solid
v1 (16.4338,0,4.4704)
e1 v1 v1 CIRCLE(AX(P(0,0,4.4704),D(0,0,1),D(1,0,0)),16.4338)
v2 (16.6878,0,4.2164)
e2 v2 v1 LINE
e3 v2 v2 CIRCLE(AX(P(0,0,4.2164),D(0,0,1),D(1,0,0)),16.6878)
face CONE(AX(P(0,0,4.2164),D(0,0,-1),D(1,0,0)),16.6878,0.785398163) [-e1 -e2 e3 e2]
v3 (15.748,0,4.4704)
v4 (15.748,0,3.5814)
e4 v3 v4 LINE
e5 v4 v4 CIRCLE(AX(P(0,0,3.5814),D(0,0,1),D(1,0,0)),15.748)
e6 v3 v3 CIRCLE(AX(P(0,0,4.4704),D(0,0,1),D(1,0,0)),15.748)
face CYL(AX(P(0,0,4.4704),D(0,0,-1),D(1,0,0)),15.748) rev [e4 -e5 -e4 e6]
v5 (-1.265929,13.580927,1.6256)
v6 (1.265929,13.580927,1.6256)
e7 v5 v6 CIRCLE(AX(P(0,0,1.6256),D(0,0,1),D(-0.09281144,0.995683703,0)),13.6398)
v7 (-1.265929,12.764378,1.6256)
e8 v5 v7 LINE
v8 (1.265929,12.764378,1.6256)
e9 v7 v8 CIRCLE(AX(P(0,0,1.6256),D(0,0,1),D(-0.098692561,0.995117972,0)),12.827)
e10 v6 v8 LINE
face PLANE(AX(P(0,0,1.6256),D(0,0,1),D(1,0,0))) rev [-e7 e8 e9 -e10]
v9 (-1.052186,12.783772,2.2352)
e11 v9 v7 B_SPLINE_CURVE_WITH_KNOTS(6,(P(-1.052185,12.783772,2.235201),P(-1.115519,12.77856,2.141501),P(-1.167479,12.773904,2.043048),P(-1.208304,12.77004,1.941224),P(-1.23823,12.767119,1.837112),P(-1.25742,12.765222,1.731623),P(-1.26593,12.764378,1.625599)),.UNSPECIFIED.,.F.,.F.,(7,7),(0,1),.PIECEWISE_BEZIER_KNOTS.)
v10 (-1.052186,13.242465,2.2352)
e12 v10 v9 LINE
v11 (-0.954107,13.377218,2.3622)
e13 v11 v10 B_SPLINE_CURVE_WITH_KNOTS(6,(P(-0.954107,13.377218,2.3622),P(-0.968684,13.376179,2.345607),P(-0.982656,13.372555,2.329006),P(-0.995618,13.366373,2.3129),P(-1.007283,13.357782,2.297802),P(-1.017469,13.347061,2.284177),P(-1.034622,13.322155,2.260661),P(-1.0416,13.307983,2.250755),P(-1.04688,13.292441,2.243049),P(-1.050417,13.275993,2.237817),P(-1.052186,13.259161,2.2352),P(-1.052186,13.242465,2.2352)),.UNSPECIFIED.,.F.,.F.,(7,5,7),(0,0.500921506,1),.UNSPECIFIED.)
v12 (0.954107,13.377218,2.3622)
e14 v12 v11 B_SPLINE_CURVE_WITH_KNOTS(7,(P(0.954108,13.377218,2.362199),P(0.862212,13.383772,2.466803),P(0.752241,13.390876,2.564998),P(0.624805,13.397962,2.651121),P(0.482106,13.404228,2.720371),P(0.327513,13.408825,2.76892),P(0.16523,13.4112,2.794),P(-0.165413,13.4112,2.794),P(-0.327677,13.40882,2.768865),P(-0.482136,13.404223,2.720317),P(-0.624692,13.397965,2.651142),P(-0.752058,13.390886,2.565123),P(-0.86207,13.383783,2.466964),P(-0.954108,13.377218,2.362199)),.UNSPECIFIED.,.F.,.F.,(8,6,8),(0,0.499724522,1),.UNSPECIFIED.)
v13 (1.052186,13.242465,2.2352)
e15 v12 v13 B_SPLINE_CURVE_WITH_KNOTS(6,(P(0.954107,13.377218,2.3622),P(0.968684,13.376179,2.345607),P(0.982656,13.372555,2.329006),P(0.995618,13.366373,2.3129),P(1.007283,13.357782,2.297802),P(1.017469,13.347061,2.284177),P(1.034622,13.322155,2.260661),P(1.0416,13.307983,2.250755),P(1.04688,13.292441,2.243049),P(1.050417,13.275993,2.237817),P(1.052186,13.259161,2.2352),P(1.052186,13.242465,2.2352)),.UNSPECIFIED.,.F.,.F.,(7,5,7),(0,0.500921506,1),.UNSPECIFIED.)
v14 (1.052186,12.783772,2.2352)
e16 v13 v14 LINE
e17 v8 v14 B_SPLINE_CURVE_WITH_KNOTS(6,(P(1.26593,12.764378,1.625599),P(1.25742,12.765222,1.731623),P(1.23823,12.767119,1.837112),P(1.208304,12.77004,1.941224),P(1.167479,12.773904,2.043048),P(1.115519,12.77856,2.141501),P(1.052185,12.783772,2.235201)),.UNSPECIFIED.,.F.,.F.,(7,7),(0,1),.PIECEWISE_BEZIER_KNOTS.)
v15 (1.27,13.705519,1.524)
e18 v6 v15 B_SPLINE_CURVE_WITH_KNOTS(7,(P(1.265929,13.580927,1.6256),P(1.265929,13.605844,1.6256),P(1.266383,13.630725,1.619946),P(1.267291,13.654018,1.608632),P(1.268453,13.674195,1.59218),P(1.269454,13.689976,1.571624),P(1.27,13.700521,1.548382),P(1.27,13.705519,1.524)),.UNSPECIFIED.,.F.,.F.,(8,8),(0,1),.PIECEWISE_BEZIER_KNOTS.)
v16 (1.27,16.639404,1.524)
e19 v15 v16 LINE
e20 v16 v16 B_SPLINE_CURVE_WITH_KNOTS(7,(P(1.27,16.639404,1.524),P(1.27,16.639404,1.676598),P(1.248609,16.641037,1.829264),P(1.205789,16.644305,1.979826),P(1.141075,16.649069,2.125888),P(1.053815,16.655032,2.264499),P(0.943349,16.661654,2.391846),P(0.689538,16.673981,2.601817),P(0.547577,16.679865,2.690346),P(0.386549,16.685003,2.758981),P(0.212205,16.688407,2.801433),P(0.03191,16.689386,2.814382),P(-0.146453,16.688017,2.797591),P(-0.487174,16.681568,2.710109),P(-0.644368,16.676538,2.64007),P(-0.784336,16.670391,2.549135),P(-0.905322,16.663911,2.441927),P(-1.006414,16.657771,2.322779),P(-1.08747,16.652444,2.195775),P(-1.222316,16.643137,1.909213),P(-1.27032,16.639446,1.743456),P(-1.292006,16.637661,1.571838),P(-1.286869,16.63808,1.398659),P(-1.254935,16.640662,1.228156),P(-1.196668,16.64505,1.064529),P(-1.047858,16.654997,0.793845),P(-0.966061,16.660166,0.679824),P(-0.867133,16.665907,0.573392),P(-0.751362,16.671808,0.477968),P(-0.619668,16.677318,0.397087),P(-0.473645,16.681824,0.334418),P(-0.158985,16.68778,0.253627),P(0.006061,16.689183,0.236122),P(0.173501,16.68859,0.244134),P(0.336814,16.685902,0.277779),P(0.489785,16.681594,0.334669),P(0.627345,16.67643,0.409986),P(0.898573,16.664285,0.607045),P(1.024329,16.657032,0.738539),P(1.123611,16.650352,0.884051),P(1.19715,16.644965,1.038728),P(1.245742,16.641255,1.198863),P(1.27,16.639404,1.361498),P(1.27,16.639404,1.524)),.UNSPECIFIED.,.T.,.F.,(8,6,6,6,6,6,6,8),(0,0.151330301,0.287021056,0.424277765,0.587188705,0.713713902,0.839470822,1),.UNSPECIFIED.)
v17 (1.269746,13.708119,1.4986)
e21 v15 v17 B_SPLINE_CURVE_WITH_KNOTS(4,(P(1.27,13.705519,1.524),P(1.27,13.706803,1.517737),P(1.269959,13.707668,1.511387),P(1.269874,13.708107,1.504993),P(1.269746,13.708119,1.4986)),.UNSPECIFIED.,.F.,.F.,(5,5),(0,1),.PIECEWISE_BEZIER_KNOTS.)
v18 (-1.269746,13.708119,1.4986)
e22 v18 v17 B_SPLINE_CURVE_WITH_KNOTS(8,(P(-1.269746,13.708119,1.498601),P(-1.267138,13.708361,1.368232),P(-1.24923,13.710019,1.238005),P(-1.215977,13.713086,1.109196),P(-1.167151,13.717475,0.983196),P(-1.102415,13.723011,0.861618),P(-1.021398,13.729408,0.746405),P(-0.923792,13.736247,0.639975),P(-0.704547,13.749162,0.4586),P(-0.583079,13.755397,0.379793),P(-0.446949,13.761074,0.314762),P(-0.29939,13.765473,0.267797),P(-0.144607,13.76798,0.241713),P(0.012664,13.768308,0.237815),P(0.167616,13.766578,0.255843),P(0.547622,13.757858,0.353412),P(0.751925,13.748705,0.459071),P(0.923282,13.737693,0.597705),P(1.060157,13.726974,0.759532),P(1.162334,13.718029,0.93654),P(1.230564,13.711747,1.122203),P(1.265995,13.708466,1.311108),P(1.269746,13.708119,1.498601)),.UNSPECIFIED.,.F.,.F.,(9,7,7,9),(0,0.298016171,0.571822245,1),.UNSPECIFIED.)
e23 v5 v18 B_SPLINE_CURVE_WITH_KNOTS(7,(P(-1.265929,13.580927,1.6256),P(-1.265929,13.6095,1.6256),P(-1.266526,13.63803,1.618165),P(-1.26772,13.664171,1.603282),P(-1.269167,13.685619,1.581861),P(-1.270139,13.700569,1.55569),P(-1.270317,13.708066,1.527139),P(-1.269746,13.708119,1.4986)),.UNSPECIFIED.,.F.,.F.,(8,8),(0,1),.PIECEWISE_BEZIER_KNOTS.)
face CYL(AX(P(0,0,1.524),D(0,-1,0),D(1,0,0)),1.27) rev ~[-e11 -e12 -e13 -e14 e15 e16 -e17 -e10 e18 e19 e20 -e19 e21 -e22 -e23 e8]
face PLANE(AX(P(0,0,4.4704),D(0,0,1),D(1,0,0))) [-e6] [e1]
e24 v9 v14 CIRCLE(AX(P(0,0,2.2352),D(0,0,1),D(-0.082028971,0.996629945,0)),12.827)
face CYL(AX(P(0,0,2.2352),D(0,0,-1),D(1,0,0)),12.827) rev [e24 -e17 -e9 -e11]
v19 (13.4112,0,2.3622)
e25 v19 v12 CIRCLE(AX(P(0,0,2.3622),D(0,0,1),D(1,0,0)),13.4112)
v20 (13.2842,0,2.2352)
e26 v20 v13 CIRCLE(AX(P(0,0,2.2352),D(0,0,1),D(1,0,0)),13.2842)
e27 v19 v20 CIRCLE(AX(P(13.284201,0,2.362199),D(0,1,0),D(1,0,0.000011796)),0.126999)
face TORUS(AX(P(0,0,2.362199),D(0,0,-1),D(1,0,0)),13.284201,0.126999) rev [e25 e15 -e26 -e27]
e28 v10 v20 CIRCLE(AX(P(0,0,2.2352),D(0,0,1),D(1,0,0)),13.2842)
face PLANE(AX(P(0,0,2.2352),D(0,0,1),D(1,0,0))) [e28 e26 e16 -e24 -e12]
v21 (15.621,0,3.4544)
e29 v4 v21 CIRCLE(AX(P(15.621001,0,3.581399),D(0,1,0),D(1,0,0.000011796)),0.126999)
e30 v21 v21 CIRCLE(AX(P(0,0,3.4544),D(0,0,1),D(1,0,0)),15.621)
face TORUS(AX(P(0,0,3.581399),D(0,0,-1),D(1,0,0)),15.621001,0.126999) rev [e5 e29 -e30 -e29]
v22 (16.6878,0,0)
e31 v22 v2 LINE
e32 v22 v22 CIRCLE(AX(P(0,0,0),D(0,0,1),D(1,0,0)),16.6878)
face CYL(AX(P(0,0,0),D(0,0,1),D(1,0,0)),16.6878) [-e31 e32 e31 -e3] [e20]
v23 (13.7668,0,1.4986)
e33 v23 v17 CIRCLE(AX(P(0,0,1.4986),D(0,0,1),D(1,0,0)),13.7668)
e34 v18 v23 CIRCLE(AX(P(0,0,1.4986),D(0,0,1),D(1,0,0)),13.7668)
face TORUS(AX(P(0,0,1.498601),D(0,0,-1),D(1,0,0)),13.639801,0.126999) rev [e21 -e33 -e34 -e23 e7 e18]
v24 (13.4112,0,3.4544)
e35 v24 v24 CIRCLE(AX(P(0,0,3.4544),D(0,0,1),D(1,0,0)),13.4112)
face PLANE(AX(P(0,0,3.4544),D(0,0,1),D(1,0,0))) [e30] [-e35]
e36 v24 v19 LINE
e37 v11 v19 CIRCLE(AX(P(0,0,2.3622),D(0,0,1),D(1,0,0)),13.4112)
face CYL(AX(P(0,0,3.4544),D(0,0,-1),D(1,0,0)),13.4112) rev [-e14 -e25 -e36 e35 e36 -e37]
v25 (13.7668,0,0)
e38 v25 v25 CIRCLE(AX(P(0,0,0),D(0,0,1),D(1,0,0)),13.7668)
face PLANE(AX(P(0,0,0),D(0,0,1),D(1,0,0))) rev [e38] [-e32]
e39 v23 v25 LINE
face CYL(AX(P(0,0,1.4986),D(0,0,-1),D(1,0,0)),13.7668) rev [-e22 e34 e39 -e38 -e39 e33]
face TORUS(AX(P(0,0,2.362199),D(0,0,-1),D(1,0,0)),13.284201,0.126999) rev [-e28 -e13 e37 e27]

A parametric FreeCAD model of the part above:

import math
import FreeCAD as App
import Part
import Sketcher
from FreeCAD import Vector
Q = App.Units.Quantity

doc = App.newDocument("Part")
body = doc.addObject("PartDesign::Body", "Body")

# Sketch on XZ plane
sketch1 = body.newObject("Sketcher::SketchObject", "Sketch")
sketch1.AttachmentSupport = (doc.getObject("XZ_Plane"), [""])
sketch1.MapMode = "FlatFace"
sketch1.addGeometry(Part.LineSegment(Vector(16.69, 0, 0), Vector(16.69, 4.22, 0)), False)
sketch1.addGeometry(Part.LineSegment(Vector(16.69, 4.22, 0), Vector(16.43, 4.47, 0)), False)
sketch1.addGeometry(Part.LineSegment(Vector(16.43, 4.47, 0), Vector(15.75, 4.47, 0)), False)
sketch1.addGeometry(Part.LineSegment(Vector(15.75, 4.47, 0), Vector(15.75, 3.58, 0)), False)
sketch1.addGeometry(Part.ArcOfCircle(Part.Circle(Vector(15.62, 3.58, 0), Vector(0, 0, 1), 0.13), math.radians(-90), math.radians(0)), False)
sketch1.addGeometry(Part.LineSegment(Vector(15.62, 3.45, 0), Vector(13.41, 3.45, 0)), False)
sketch1.addGeometry(Part.LineSegment(Vector(13.41, 3.45, 0), Vector(13.41, 2.36, 0)), False)
sketch1.addGeometry(Part.ArcOfCircle(Part.Circle(Vector(13.28, 2.36, 0), Vector(0, 0, 1), 0.13), math.radians(-90), math.radians(0)), False)
sketch1.addGeometry(Part.LineSegment(Vector(13.28, 2.24, 0), Vector(12.83, 2.24, 0)), False)
sketch1.addGeometry(Part.LineSegment(Vector(12.83, 2.24, 0), Vector(12.83, 1.63, 0)), False)
sketch1.addGeometry(Part.LineSegment(Vector(12.83, 1.63, 0), Vector(13.64, 1.63, 0)), False)
sketch1.addGeometry(Part.ArcOfCircle(Part.Circle(Vector(13.64, 1.5, 0), Vector(0, 0, 1), 0.13), math.radians(0), math.radians(90)), False)
sketch1.addGeometry(Part.LineSegment(Vector(13.77, 1.5, 0), Vector(13.77, 0, 0)), False)
sketch1.addGeometry(Part.LineSegment(Vector(13.77, 0, 0), Vector(16.69, 0, 0)), False)
sketch1.addConstraint(Sketcher.Constraint("Coincident", 0, 2, 1, 1))
sketch1.addConstraint(Sketcher.Constraint("Coincident", 1, 2, 2, 1))
sketch1.addConstraint(Sketcher.Constraint("Coincident", 2, 2, 3, 1))
sketch1.addConstraint(Sketcher.Constraint("Coincident", 3, 2, 4, 2))
sketch1.addConstraint(Sketcher.Constraint("Coincident", 4, 1, 5, 1))
sketch1.addConstraint(Sketcher.Constraint("Coincident", 5, 2, 6, 1))
sketch1.addConstraint(Sketcher.Constraint("Coincident", 6, 2, 7, 2))
sketch1.addConstraint(Sketcher.Constraint("Coincident", 7, 1, 8, 1))
sketch1.addConstraint(Sketcher.Constraint("Coincident", 8, 2, 9, 1))
sketch1.addConstraint(Sketcher.Constraint("Coincident", 9, 2, 10, 1))
sketch1.addConstraint(Sketcher.Constraint("Coincident", 10, 2, 11, 2))
sketch1.addConstraint(Sketcher.Constraint("Coincident", 11, 1, 12, 1))
sketch1.addConstraint(Sketcher.Constraint("Coincident", 12, 2, 13, 1))
sketch1.addConstraint(Sketcher.Constraint("Coincident", 13, 2, 0, 1))
sketch1.addConstraint(Sketcher.Constraint("Vertical", 0))
sketch1.addConstraint(Sketcher.Constraint("Horizontal", 2))
sketch1.addConstraint(Sketcher.Constraint("Vertical", 3))
sketch1.addConstraint(Sketcher.Constraint("Horizontal", 5))
sketch1.addConstraint(Sketcher.Constraint("Vertical", 6))
sketch1.addConstraint(Sketcher.Constraint("Horizontal", 8))
sketch1.addConstraint(Sketcher.Constraint("Vertical", 9))
sketch1.addConstraint(Sketcher.Constraint("Horizontal", 10))
sketch1.addConstraint(Sketcher.Constraint("Vertical", 12))
sketch1.addConstraint(Sketcher.Constraint("Horizontal", 13))
sketch1.addConstraint(Sketcher.Constraint("Equal", 4, 7))
sketch1.addConstraint(Sketcher.Constraint("Equal", 7, 11))
sketch1.addConstraint(Sketcher.Constraint("PointOnObject", 12, 2, -1))
sketch1.addConstraint(Sketcher.Constraint("Horizontal", 4, 3, 3, 2))
sketch1.addConstraint(Sketcher.Constraint("Horizontal", 7, 3, 6, 2))
sketch1.addConstraint(Sketcher.Constraint("Vertical", 11, 3, 10, 2))
sketch1.addConstraint(Sketcher.Constraint("Angle", 1, Q("135 deg")))
sketch1.addConstraint(Sketcher.Constraint("Radius", 4, Q("0.0049999 in")))
sketch1.addConstraint(Sketcher.Constraint("DistanceX", 2, 2, 2, 1, Q("0.027 in")))
sketch1.addConstraint(Sketcher.Constraint("DistanceX", 5, 2, 5, 1, Q("0.087 in")))
sketch1.addConstraint(Sketcher.Constraint("DistanceX", 8, 2, 8, 1, Q("0.018 in")))
sketch1.addConstraint(Sketcher.Constraint("DistanceX", 10, 1, 10, 2, Q("0.032 in")))
sketch1.addConstraint(Sketcher.Constraint("DistanceX", 13, 1, 13, 2, Q("0.115 in")))
sketch1.addConstraint(Sketcher.Constraint("DistanceY", 0, 1, 0, 2, Q("0.166 in")))
sketch1.addConstraint(Sketcher.Constraint("DistanceY", 3, 2, 3, 1, Q("0.035 in")))
sketch1.addConstraint(Sketcher.Constraint("DistanceY", 6, 2, 6, 1, Q("0.043 in")))
sketch1.addConstraint(Sketcher.Constraint("DistanceY", 9, 2, 9, 1, Q("0.024 in")))
sketch1.addConstraint(Sketcher.Constraint("DistanceY", 12, 2, 12, 1, Q("0.059 in")))
sketch1.addConstraint(Sketcher.Constraint("DistanceX", -1, 1, 2, 2, Q("0.62 in")))
sketch1.addConstraint(Sketcher.Constraint("DistanceX", 1, 2, 0, 2, Q("0.01 in")))
sketch1.addConstraint(Sketcher.Constraint("DistanceX", -1, 1, 7, 3, Q("0.5230001 in")))
revolution = body.newObject("PartDesign::Revolution", "Revolution")
revolution.Profile = sketch1
revolution.ReferenceAxis = (sketch1, ["V_Axis"])
revolution.Angle = 360

# Sketch on XZ plane
sketch2 = body.newObject("Sketcher::SketchObject", "Sketch001")
sketch2.AttachmentSupport = (doc.getObject("XZ_Plane"), [""])
sketch2.MapMode = "FlatFace"
sketch2.addGeometry(Part.Circle(Vector(0, 1.5, 0), Vector(0, 0, 1), 1.3), False)
sketch2.addConstraint(Sketcher.Constraint("PointOnObject", 0, 3, -2))
sketch2.addConstraint(Sketcher.Constraint("Diameter", 0, Q("0.1 in")))
sketch2.addConstraint(Sketcher.Constraint("DistanceY", -1, 1, 0, 3, Q("0.06 in")))
pocket1 = body.newObject("PartDesign::Pocket", "Pocket")
pocket1.Profile = sketch2
pocket1.Length = Q("1 in")

doc.recompute()
